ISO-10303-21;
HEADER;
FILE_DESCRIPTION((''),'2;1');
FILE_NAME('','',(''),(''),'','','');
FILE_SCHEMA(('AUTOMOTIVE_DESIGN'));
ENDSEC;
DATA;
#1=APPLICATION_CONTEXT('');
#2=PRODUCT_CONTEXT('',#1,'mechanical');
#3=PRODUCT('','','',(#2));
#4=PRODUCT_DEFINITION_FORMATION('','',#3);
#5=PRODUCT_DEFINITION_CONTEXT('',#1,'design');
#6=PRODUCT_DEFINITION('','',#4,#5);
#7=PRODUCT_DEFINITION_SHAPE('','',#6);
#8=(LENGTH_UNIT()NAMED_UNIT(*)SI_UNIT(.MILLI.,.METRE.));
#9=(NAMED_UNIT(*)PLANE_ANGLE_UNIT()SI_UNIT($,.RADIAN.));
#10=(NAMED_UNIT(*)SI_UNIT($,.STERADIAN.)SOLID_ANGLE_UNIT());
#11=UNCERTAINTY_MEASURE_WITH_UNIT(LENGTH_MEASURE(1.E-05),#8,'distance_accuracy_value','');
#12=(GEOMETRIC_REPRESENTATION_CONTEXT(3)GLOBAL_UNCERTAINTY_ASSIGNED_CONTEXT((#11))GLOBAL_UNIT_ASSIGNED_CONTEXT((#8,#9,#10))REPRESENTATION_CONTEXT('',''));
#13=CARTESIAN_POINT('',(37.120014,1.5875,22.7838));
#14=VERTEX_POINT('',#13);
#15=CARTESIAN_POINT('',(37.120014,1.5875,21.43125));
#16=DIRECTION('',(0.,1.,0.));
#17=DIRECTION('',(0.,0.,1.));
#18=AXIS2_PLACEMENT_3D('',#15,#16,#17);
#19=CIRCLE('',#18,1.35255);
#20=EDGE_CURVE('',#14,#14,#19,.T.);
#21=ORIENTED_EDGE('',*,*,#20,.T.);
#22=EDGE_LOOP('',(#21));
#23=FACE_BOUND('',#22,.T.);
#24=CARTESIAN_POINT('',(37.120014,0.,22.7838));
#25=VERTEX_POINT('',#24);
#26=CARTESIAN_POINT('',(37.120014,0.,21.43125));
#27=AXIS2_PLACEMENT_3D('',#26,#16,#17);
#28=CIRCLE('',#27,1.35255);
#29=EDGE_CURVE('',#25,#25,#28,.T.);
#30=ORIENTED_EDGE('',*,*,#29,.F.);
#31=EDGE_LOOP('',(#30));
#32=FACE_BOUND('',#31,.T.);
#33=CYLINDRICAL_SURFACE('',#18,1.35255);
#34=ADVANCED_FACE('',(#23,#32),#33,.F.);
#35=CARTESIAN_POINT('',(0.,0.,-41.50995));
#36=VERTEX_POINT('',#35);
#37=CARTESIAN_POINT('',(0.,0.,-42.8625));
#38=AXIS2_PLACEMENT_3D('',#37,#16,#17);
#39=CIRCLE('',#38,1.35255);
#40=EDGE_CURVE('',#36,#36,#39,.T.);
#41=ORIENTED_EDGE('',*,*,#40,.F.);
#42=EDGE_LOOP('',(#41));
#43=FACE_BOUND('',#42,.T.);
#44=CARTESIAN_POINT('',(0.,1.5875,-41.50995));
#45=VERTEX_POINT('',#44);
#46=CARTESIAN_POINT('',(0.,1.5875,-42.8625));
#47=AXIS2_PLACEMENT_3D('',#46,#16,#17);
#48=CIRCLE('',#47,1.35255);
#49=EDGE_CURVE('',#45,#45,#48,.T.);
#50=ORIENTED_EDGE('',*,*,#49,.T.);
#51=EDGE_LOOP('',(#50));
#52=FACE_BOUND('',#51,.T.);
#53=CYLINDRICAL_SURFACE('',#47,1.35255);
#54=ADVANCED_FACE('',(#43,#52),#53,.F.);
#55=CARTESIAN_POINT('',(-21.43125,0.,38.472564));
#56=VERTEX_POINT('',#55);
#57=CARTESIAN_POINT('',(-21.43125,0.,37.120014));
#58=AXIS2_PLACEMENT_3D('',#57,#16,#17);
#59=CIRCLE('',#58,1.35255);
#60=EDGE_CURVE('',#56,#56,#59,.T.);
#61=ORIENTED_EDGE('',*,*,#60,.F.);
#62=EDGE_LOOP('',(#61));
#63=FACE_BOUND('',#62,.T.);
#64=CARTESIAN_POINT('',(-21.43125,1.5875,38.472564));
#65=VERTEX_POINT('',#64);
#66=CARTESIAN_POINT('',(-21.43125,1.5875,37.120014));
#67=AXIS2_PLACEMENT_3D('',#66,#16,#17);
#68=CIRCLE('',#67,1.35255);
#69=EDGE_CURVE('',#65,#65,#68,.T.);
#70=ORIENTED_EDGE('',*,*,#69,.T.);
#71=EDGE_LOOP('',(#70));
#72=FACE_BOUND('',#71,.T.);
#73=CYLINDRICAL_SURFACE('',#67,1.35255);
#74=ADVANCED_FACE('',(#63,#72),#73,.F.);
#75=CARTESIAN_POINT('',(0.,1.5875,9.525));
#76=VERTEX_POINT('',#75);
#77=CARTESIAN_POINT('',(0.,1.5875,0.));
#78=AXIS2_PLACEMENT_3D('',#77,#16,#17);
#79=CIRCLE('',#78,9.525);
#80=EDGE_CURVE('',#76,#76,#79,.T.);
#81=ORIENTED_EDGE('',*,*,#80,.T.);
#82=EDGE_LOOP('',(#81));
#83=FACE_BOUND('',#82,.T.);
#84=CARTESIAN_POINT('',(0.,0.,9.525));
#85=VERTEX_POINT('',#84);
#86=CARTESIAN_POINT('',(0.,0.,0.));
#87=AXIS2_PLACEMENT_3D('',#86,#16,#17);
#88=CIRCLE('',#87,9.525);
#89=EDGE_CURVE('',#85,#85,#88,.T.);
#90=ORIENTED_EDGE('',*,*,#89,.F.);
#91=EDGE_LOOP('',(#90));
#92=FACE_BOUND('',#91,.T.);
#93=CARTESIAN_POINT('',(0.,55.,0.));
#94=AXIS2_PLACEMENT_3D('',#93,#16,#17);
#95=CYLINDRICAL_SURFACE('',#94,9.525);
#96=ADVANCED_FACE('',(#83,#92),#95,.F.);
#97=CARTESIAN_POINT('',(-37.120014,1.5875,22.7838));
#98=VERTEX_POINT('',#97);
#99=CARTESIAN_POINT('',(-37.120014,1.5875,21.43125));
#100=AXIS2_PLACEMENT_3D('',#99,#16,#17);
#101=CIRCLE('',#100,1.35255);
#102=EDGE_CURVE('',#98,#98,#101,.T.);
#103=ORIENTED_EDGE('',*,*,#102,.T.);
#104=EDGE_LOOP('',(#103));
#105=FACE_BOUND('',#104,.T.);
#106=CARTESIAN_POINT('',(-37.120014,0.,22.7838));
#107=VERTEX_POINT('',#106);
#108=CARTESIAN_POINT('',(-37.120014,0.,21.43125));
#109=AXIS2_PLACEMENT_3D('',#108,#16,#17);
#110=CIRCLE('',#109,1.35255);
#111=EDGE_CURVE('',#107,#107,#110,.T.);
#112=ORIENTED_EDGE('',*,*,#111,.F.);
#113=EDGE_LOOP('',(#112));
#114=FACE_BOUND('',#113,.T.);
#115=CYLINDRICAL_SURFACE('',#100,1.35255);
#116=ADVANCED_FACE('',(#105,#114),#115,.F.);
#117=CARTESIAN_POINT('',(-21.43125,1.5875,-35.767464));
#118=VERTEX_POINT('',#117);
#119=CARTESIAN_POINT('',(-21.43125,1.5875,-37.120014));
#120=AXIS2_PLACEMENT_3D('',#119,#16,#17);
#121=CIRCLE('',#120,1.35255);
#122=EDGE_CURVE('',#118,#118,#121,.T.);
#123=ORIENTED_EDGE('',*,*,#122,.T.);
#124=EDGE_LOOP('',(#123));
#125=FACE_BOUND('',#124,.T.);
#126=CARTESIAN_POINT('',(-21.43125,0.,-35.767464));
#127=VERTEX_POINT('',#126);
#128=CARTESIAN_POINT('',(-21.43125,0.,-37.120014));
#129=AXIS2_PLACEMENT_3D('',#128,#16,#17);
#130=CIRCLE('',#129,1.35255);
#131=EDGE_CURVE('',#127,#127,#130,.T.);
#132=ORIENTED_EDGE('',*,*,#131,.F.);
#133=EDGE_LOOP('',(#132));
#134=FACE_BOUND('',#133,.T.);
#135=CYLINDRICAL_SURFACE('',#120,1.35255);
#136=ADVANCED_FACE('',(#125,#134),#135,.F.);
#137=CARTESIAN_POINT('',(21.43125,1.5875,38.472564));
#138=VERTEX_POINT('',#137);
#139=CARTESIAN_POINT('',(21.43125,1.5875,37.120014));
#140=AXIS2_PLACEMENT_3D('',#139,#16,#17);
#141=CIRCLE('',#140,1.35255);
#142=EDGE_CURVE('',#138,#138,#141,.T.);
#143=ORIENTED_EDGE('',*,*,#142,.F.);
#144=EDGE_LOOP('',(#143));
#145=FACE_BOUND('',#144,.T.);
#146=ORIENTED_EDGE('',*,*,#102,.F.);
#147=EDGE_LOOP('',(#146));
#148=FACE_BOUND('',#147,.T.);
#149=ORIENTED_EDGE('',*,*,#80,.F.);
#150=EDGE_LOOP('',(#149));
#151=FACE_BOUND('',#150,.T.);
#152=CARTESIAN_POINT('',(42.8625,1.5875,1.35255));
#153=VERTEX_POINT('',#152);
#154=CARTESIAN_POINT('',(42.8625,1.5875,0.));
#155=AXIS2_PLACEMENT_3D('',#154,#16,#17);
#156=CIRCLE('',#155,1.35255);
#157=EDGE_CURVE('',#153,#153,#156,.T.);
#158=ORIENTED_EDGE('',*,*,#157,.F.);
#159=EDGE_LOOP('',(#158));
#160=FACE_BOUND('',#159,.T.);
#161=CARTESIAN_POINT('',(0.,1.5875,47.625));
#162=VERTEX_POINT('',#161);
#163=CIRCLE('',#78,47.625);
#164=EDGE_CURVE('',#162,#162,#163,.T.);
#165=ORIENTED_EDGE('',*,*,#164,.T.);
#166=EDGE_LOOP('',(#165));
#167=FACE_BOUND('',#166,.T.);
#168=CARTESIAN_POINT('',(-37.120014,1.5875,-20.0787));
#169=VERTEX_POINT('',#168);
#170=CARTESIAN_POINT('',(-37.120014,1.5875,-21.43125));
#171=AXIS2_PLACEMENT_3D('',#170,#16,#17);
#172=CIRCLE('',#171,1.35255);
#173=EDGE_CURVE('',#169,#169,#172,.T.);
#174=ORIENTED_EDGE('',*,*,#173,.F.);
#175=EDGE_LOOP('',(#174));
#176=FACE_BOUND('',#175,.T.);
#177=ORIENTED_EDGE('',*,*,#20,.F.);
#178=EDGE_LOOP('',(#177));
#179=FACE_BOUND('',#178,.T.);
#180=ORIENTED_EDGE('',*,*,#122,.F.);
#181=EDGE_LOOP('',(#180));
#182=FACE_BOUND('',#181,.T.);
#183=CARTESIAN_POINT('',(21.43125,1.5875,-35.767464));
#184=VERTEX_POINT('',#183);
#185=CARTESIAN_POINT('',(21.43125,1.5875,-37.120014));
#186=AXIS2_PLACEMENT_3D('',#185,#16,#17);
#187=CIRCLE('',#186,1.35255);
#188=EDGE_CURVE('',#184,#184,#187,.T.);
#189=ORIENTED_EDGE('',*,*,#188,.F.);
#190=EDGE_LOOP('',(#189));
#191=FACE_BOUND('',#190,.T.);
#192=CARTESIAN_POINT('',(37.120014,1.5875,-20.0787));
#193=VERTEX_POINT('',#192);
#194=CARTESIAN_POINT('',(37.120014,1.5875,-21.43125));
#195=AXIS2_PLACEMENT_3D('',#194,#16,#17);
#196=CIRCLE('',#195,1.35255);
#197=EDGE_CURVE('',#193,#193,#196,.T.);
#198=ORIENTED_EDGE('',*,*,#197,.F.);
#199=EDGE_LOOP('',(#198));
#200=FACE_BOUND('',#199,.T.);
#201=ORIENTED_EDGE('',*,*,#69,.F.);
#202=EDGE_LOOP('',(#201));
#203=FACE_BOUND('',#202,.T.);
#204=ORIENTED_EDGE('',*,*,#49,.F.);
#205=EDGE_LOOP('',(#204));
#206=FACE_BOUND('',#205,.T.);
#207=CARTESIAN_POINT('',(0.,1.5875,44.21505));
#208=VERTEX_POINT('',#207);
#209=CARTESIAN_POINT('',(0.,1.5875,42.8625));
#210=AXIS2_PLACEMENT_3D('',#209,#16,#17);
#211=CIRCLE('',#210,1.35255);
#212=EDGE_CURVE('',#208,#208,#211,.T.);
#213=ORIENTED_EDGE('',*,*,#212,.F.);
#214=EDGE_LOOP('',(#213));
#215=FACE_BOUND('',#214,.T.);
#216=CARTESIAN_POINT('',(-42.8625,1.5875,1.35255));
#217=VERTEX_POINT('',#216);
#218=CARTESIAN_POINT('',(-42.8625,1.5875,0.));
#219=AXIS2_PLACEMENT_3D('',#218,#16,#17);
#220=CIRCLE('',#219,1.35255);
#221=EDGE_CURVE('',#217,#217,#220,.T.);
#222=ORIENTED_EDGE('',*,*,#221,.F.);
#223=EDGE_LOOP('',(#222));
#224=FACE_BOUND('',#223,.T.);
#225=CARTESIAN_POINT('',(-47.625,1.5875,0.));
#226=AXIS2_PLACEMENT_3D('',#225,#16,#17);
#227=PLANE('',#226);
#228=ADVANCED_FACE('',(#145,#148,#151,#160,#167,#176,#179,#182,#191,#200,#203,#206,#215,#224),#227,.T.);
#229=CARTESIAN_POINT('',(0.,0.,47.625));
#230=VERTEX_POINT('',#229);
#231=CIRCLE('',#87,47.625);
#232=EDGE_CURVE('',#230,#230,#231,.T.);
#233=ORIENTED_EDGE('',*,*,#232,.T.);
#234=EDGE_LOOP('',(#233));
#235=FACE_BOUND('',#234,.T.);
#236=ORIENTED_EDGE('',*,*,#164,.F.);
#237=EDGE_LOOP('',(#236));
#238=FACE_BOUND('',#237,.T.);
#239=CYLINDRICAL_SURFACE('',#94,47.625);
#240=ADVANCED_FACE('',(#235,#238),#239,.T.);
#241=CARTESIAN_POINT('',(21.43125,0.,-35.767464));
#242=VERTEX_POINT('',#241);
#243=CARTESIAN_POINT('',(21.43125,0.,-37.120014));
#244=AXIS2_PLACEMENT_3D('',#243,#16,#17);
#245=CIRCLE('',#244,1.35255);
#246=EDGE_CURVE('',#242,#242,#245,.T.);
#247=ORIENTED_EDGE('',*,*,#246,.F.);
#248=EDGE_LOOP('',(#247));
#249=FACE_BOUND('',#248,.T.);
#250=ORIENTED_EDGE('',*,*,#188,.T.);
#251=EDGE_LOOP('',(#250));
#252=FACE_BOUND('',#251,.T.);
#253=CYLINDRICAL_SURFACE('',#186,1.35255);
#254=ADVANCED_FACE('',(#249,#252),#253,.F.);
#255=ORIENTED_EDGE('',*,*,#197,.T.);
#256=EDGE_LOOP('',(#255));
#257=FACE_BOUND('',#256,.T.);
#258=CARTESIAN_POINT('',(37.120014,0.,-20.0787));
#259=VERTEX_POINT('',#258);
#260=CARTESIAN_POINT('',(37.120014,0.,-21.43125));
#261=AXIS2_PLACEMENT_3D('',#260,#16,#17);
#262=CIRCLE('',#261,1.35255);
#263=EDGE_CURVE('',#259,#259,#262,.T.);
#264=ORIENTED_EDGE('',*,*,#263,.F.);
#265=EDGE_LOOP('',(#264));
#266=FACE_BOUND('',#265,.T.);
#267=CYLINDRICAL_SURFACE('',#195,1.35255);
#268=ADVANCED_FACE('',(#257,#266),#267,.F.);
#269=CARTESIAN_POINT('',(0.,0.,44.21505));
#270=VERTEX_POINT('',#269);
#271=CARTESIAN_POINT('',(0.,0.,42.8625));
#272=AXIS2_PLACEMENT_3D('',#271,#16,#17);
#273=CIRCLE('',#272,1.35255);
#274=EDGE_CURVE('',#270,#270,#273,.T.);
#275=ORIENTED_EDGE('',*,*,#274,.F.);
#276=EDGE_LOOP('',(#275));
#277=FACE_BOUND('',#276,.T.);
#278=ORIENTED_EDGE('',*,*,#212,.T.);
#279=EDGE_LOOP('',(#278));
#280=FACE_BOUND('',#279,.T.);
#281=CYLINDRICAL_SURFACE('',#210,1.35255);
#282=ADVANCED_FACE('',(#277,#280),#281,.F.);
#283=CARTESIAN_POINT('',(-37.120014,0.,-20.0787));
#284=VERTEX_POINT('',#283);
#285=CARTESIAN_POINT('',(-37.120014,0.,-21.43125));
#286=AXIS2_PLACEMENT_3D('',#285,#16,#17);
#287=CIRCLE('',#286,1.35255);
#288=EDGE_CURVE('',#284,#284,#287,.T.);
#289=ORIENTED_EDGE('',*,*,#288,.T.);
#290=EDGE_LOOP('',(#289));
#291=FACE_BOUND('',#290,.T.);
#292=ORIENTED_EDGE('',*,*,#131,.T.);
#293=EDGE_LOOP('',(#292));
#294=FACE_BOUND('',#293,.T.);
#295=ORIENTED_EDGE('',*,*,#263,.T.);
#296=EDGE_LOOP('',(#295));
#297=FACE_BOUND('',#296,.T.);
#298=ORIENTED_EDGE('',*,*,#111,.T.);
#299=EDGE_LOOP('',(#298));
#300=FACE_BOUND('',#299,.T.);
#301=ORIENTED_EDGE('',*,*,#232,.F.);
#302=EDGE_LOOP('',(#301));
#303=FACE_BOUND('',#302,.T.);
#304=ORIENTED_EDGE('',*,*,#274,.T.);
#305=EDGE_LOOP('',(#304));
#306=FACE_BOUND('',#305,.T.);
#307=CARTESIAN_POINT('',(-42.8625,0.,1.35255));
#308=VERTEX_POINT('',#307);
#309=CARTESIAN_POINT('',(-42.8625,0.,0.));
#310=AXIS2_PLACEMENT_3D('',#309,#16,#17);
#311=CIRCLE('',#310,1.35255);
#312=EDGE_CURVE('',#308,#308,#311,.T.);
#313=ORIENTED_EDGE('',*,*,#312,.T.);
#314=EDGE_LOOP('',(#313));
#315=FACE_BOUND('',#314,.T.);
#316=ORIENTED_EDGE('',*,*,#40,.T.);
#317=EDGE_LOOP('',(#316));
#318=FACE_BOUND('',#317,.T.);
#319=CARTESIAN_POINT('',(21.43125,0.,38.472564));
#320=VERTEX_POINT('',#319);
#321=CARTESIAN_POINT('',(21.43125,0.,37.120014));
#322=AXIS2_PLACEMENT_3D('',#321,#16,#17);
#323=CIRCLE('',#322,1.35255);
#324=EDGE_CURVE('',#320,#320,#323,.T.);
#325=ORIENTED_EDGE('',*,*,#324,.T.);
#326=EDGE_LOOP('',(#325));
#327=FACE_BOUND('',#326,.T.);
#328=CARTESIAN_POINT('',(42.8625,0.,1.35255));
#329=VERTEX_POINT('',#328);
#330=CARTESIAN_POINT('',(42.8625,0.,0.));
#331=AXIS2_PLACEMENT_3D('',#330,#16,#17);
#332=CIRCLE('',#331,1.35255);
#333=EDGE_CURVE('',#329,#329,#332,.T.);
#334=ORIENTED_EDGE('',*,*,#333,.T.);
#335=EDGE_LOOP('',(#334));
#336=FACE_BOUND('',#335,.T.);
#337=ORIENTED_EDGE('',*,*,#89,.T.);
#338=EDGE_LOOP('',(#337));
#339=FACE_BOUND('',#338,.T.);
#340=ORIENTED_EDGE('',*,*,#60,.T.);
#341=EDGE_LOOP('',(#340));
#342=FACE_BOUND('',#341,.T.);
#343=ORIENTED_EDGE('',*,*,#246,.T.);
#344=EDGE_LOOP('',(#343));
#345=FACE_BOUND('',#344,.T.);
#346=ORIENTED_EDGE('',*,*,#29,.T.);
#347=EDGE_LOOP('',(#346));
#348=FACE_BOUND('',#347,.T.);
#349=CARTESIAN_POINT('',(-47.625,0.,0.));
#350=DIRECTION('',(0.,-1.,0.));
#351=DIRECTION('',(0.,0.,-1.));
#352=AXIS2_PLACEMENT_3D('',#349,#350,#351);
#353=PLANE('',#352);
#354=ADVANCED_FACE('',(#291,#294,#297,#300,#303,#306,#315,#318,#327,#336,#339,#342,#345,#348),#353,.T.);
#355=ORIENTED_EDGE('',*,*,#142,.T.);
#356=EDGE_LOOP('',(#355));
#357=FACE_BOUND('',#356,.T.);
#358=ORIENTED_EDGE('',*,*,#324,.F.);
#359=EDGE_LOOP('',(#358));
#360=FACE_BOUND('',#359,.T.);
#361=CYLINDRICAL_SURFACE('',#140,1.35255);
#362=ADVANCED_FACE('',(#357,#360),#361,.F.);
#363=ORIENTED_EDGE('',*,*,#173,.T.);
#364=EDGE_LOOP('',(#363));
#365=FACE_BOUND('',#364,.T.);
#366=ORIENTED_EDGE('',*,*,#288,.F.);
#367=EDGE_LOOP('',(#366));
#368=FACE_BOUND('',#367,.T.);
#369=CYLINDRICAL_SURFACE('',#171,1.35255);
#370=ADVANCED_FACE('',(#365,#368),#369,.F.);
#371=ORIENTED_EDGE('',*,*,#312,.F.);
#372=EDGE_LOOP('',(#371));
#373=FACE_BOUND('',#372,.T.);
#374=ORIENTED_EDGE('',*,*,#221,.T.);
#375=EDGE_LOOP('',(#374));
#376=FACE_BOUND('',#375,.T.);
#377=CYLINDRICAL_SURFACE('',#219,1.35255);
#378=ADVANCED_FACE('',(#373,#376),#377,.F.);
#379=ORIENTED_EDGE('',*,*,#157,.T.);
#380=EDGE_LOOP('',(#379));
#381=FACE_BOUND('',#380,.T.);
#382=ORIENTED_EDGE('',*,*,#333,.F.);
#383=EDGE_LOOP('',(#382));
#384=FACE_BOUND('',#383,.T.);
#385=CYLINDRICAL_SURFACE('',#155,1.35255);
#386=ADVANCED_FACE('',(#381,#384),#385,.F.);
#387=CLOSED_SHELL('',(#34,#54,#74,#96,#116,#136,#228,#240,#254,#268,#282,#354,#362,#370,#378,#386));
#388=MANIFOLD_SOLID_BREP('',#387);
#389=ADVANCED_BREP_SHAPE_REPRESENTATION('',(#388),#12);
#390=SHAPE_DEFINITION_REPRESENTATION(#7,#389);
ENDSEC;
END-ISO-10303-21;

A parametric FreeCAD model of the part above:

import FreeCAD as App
import Part
import Sketcher

V = App.Vector
Q = App.Units.Quantity

doc = App.newDocument("Part")
body = doc.addObject("PartDesign::Body", "Body")

sketch1 = body.newObject("Sketcher::SketchObject", "Sketch")
sketch1.AttachmentSupport = (doc.getObject("XY_Plane"), [""])
sketch1.MapMode = "FlatFace"
sketch1.addGeometry(Part.LineSegment(V(-47.6, 1.6, 0), V(-47.6, 0, 0)), False)
sketch1.addGeometry(Part.LineSegment(V(-47.6, 0, 0), V(-9.5, 0, 0)), False)
sketch1.addGeometry(Part.LineSegment(V(-9.5, 0, 0), V(-9.5, 1.6, 0)), False)
sketch1.addGeometry(Part.LineSegment(V(-9.5, 1.6, 0), V(-47.6, 1.6, 0)), False)
sketch1.addConstraint(Sketcher.Constraint("Coincident", 0, 2, 1, 1))
sketch1.addConstraint(Sketcher.Constraint("Coincident", 1, 2, 2, 1))
sketch1.addConstraint(Sketcher.Constraint("Coincident", 2, 2, 3, 1))
sketch1.addConstraint(Sketcher.Constraint("Coincident", 3, 2, 0, 1))
sketch1.addConstraint(Sketcher.Constraint("Vertical", 0))
sketch1.addConstraint(Sketcher.Constraint("Horizontal", 1))
sketch1.addConstraint(Sketcher.Constraint("Vertical", 2))
sketch1.addConstraint(Sketcher.Constraint("Horizontal", 3))
sketch1.addConstraint(Sketcher.Constraint("PointOnObject", 0, 2, -1))
sketch1.addConstraint(Sketcher.Constraint("DistanceX", 1, 1, 1, 2, Q("1.5 in")))
sketch1.addConstraint(Sketcher.Constraint("DistanceY", 0, 2, 0, 1, Q("0.0625 in")))
sketch1.addConstraint(Sketcher.Constraint("DistanceX", 0, 2, -1, 1, Q("1.875 in")))
revolution = body.newObject("PartDesign::Revolution", "Revolution")
revolution.Profile = sketch1
revolution.ReferenceAxis = (sketch1, ["V_Axis"])
revolution.Angle = 360

sketch2 = body.newObject("Sketcher::SketchObject", "Sketch001")
sketch2.AttachmentSupport = (doc.getObject("XZ_Plane"), [""])
sketch2.MapMode = "FlatFace"
sketch2.AttachmentOffset = App.Placement(V(0, 0, -0.0625 * 25.4), App.Rotation())
sketch2.addGeometry(Part.Circle(V(-42.9, 0, 0), V(0, 0, 1), 1.4), False)
sketch2.addConstraint(Sketcher.Constraint("PointOnObject", 0, 3, -1))
sketch2.addConstraint(Sketcher.Constraint("Diameter", 0, Q("0.1065 in")))
sketch2.addConstraint(Sketcher.Constraint("DistanceX", 0, 3, -1, 1, Q("1.6875 in")))
doc.recompute()
hole = body.newObject("PartDesign::Hole", "Hole")
hole.Profile = sketch2
hole.ThreadType = "None"
hole.Diameter = Q("0.1065 in")
hole.DepthType = "ThroughAll"
hole.Reversed = True
doc.recompute()

polarpattern = body.newObject("PartDesign::PolarPattern", "PolarPattern")
polarpattern.Originals = [hole]
polarpattern.Axis = (doc.getObject("Y_Axis"), [""])
polarpattern.Angle = 360
polarpattern.Occurrences = 12
body.Tip = polarpattern

doc.recompute()
